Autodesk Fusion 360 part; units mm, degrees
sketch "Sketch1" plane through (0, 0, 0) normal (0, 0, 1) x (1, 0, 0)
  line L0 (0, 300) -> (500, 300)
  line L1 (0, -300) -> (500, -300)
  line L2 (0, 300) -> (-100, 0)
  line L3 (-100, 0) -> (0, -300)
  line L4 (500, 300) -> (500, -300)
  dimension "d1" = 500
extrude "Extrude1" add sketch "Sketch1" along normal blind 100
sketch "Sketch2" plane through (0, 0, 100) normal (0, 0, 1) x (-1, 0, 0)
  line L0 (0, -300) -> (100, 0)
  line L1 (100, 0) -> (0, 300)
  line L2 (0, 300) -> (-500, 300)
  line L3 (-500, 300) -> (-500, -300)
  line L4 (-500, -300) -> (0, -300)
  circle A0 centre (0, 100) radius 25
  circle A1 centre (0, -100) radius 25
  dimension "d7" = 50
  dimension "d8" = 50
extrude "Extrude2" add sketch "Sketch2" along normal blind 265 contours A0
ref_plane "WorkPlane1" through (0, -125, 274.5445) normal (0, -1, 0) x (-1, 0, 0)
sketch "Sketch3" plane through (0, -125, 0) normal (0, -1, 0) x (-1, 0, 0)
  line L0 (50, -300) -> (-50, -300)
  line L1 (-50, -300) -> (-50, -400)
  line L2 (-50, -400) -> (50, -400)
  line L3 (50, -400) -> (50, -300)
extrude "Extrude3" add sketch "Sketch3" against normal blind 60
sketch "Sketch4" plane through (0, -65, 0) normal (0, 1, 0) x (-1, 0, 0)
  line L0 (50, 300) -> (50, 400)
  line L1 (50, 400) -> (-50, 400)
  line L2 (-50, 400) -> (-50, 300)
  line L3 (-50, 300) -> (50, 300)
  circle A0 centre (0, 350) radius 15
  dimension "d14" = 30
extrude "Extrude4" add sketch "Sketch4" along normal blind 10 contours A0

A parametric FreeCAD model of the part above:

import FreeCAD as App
import Part
import Sketcher
from FreeCAD import Vector
Q = App.Units.Quantity


def add_polygon(sketch, points):
    """Adds a closed chain of lines whose ends are joined by coincident constraints."""
    first, n = sketch.GeometryCount, len(points)
    for a, b in zip(points, points[1:] + points[:1]):
        sketch.addGeometry(Part.LineSegment(App.Vector(*a, 0), App.Vector(*b, 0)), False)
    for i in range(n):
        sketch.addConstraint(Sketcher.Constraint("Coincident", first + i, 2, first + (i + 1) % n, 1))

doc = App.newDocument("Part")
body = doc.addObject("PartDesign::Body", "Body")

# Sketch on XY plane
sketch1 = body.newObject("Sketcher::SketchObject", "Sketch")
sketch1.AttachmentSupport = (doc.getObject("XY_Plane"), [""])
sketch1.MapMode = "FlatFace"
add_polygon(sketch1, [(500, 300), (0, 300), (-100, 0), (0, -300), (500, -300)])  # lines 0-4
sketch1.addConstraint(Sketcher.Constraint("Horizontal", 0))
sketch1.addConstraint(Sketcher.Constraint("Horizontal", 3))
sketch1.addConstraint(Sketcher.Constraint("Vertical", 4))
sketch1.addConstraint(Sketcher.Constraint("Symmetric", 0, 2, 2, 2, -1, 1))
sketch1.addConstraint(Sketcher.Constraint("PointOnObject", 0, 2, -2))
sketch1.addConstraint(Sketcher.Constraint("PointOnObject", 1, 2, -1))
sketch1.addConstraint(Sketcher.Constraint("DistanceX", 0, 2, 0, 1, Q("500 mm")))
sketch1.addConstraint(Sketcher.Constraint("DistanceY", 4, 1, 4, 2, Q("600 mm")))
sketch1.addConstraint(Sketcher.Constraint("DistanceX", 1, 2, -1, 1, Q("100 mm")))
pad1 = body.newObject("PartDesign::Pad", "Pad")
pad1.Profile = sketch1
pad1.Length = 100

# Sketch on XY plane
sketch2 = body.newObject("Sketcher::SketchObject", "Sketch001")
sketch2.AttachmentSupport = (doc.getObject("XY_Plane"), [""])
sketch2.MapMode = "FlatFace"
sketch2.AttachmentOffset = App.Placement(Vector(0, 0, 100), App.Rotation())
sketch2.addGeometry(Part.Circle(Vector(0, -100, 0), Vector(0, 0, 1), 25), False)
sketch2.addConstraint(Sketcher.Constraint("PointOnObject", 0, 3, -2))
sketch2.addConstraint(Sketcher.Constraint("Diameter", 0, Q("50 mm")))
sketch2.addConstraint(Sketcher.Constraint("DistanceY", 0, 3, -1, 1, Q("100 mm")))
pad2 = body.newObject("PartDesign::Pad", "Pad001")
pad2.Profile = sketch2
pad2.Length = 265

# Sketch on XZ plane
sketch3 = body.newObject("Sketcher::SketchObject", "Sketch002")
sketch3.AttachmentSupport = (doc.getObject("XZ_Plane"), [""])
sketch3.MapMode = "FlatFace"
sketch3.AttachmentOffset = App.Placement(Vector(0, 0, 125), App.Rotation())
add_polygon(sketch3, [(-50, 400), (-50, 300), (50, 300), (50, 400)])  # lines 0-3
sketch3.addConstraint(Sketcher.Constraint("Vertical", 0))
sketch3.addConstraint(Sketcher.Constraint("Horizontal", 1))
sketch3.addConstraint(Sketcher.Constraint("Vertical", 2))
sketch3.addConstraint(Sketcher.Constraint("Horizontal", 3))
sketch3.addConstraint(Sketcher.Constraint("Equal", 3, 0))
sketch3.addConstraint(Sketcher.Constraint("DistanceX", 1, 1, 1, 2, Q("100 mm")))
sketch3.addConstraint(Sketcher.Constraint("DistanceX", 0, 2, -1, 1, Q("50 mm")))
sketch3.addConstraint(Sketcher.Constraint("DistanceY", -1, 1, 0, 2, Q("300 mm")))
pad3 = body.newObject("PartDesign::Pad", "Pad002")
pad3.Profile = sketch3
pad3.Length = 60
pad3.Reversed = True

# Sketch on XZ plane
sketch4 = body.newObject("Sketcher::SketchObject", "Sketch003")
sketch4.AttachmentSupport = (doc.getObject("XZ_Plane"), [""])
sketch4.MapMode = "FlatFace"
sketch4.AttachmentOffset = App.Placement(Vector(0, 0, 65), App.Rotation())
sketch4.addGeometry(Part.Circle(Vector(0, 350, 0), Vector(0, 0, 1), 15), False)
sketch4.addConstraint(Sketcher.Constraint("PointOnObject", 0, 3, -2))
sketch4.addConstraint(Sketcher.Constraint("Diameter", 0, Q("30 mm")))
sketch4.addConstraint(Sketcher.Constraint("DistanceY", -1, 1, 0, 3, Q("350 mm")))
pad4 = body.newObject("PartDesign::Pad", "Pad003")
pad4.Profile = sketch4
pad4.Length = 10
pad4.Reversed = True

doc.recompute()
